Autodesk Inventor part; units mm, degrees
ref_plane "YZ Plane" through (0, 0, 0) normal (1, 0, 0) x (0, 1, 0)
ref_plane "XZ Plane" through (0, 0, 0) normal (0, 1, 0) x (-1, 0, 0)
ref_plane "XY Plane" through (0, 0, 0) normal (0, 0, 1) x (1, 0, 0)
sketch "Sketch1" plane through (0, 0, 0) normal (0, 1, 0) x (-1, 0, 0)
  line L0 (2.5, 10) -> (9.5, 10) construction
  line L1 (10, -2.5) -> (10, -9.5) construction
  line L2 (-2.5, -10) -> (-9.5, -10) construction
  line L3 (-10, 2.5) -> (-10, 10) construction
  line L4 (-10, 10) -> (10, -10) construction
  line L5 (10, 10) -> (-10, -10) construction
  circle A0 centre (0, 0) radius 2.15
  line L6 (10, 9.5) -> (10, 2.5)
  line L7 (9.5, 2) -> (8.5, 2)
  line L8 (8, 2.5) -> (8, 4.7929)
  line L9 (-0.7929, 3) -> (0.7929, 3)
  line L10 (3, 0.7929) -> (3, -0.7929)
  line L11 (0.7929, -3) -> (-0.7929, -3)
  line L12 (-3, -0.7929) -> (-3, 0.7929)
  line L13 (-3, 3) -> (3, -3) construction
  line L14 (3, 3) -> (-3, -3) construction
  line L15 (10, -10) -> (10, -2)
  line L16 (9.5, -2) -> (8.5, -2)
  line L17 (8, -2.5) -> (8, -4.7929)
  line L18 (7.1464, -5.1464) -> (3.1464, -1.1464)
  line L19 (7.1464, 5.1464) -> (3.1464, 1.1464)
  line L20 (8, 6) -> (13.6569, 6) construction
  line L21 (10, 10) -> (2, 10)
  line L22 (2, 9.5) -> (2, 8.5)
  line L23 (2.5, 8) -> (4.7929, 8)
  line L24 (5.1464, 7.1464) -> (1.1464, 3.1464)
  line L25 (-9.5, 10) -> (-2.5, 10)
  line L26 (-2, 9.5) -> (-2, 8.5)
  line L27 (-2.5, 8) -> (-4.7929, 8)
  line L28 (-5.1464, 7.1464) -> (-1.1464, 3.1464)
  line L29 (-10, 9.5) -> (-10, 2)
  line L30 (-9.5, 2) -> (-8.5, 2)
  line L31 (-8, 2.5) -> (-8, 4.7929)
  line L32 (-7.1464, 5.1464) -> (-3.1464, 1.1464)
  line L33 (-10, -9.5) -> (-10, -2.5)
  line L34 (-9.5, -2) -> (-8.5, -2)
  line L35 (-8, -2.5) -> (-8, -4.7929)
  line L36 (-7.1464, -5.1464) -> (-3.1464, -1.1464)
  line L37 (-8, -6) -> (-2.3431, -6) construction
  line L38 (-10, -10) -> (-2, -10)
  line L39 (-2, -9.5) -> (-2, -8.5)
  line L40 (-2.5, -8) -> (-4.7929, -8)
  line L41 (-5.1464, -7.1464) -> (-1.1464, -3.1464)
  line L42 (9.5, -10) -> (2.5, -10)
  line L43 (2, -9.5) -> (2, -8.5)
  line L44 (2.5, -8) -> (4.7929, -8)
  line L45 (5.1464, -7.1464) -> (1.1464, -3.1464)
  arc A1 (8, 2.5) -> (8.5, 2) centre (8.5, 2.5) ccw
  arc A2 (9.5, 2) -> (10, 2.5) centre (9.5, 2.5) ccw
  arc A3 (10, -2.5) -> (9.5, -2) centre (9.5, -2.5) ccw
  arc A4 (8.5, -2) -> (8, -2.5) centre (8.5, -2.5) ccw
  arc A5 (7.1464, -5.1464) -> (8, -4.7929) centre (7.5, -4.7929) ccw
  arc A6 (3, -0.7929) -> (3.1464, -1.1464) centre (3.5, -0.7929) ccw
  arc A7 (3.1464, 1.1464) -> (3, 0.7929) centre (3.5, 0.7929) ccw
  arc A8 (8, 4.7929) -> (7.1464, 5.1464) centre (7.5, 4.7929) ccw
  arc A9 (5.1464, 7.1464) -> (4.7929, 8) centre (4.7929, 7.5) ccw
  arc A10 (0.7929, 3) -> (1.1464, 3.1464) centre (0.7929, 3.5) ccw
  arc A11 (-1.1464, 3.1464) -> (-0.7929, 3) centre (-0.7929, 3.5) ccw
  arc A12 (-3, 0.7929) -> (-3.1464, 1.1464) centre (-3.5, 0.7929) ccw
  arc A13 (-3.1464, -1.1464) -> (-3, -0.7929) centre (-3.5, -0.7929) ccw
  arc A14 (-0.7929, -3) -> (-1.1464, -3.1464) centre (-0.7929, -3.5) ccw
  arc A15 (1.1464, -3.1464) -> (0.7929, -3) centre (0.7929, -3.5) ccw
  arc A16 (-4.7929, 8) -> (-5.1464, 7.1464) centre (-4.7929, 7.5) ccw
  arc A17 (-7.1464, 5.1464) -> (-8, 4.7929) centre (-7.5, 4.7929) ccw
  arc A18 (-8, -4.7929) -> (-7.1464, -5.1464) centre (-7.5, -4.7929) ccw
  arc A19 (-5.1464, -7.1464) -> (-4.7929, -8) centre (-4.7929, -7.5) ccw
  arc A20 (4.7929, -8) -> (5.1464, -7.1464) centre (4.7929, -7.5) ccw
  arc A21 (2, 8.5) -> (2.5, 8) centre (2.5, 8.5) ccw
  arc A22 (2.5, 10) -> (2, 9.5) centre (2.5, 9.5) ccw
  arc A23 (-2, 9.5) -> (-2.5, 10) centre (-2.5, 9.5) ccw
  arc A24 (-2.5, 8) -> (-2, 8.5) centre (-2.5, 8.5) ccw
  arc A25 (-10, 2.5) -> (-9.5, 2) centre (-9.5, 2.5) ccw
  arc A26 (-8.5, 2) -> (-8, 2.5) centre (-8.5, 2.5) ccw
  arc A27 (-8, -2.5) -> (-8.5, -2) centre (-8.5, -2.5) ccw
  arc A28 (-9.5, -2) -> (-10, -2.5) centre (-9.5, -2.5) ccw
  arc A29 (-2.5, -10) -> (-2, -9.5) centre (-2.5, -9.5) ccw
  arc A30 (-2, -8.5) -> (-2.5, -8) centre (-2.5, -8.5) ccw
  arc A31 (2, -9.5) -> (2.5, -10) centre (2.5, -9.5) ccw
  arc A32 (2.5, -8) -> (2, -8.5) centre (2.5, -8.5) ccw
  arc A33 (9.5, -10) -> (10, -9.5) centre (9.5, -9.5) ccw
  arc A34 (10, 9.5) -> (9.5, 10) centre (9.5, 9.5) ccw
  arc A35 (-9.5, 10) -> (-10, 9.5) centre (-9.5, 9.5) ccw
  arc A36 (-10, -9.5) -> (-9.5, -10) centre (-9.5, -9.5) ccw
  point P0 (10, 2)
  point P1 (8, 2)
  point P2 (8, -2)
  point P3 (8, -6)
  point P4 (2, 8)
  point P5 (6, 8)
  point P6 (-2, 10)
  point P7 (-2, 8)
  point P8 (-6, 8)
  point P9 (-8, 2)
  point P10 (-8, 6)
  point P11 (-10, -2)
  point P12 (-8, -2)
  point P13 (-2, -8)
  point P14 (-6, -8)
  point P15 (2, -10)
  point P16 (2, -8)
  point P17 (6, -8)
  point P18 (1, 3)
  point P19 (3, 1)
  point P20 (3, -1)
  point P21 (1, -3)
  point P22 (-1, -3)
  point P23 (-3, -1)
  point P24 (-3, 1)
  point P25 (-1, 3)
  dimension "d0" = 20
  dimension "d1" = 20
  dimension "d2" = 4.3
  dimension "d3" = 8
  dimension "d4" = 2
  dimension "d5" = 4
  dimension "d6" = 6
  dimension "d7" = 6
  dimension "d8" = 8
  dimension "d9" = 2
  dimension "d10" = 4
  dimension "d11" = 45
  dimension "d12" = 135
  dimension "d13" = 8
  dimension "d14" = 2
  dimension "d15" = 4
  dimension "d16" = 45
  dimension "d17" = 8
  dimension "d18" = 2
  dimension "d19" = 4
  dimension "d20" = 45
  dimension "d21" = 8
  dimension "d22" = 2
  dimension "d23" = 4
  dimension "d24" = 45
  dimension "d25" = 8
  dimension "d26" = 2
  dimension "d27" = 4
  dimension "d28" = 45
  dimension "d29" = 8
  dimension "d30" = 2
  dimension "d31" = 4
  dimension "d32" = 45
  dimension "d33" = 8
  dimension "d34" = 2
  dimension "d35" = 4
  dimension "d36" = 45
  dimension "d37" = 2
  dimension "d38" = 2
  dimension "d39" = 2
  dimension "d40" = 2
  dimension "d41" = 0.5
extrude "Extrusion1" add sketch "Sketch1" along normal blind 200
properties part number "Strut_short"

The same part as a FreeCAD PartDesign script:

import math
import FreeCAD as App
import Part
import Sketcher

doc = App.newDocument("Part")
body = doc.addObject("PartDesign::Body", "Body")

# Sketch on XZ plane
sketch1 = body.newObject("Sketcher::SketchObject", "Sketch")
sketch1.AttachmentSupport = (doc.getObject("XZ_Plane"), [""])
sketch1.MapMode = "FlatFace"
sketch1.addGeometry([
    Part.LineSegment(App.Vector(-10, 2.5, 0), App.Vector(-10, 9.5, 0)),  # 0
    Part.ArcOfCircle(Part.Circle(App.Vector(-9.5, 9.5, 0), App.Vector(0, 0, 1), 0.5), math.radians(90), math.radians(180)),  # 1
    Part.LineSegment(App.Vector(-9.5, 10, 0), App.Vector(-2.5, 10, 0)),  # 2
    Part.ArcOfCircle(Part.Circle(App.Vector(-2.5, 9.5, 0), App.Vector(0, 0, 1), 0.5), math.radians(0), math.radians(90)),  # 3
    Part.LineSegment(App.Vector(-2, 9.5, 0), App.Vector(-2, 8.5, 0)),  # 4
    Part.ArcOfCircle(Part.Circle(App.Vector(-2.5, 8.5, 0), App.Vector(0, 0, 1), 0.5), math.radians(-90), math.radians(0)),  # 5
    Part.LineSegment(App.Vector(-2.5, 8, 0), App.Vector(-4.7929, 8, 0)),  # 6
    Part.ArcOfCircle(Part.Circle(App.Vector(-4.7929, 7.5, 0), App.Vector(0, 0, 1), 0.499995), math.radians(90), math.radians(225.008103)),  # 7
    Part.LineSegment(App.Vector(-5.1464, 7.1464, 0), App.Vector(-1.1464, 3.1464, 0)),  # 8
    Part.ArcOfCircle(Part.Circle(App.Vector(-0.7929, 3.5, 0), App.Vector(0, 0, 1), 0.5), math.radians(-134.991897), math.radians(-90)),  # 9
    Part.LineSegment(App.Vector(-0.7929, 3, 0), App.Vector(0.7929, 3, 0)),  # 10
    Part.ArcOfCircle(Part.Circle(App.Vector(0.7929, 3.5, 0), App.Vector(0, 0, 1), 0.499995), math.radians(-90), math.radians(-45.008103)),  # 11
    Part.LineSegment(App.Vector(1.1464, 3.1464, 0), App.Vector(5.1464, 7.1464, 0)),  # 12
    Part.ArcOfCircle(Part.Circle(App.Vector(4.7929, 7.5, 0), App.Vector(0, 0, 1), 0.5), math.radians(-45.008103), math.radians(90)),  # 13
    Part.LineSegment(App.Vector(4.7929, 8, 0), App.Vector(2.5, 8, 0)),  # 14
    Part.ArcOfCircle(Part.Circle(App.Vector(2.5, 8.5, 0), App.Vector(0, 0, 1), 0.5), math.radians(180), math.radians(270)),  # 15
    Part.LineSegment(App.Vector(2, 8.5, 0), App.Vector(2, 9.5, 0)),  # 16
    Part.ArcOfCircle(Part.Circle(App.Vector(2.5, 9.5, 0), App.Vector(0, 0, 1), 0.5), math.radians(90), math.radians(180)),  # 17
    Part.LineSegment(App.Vector(2.5, 10, 0), App.Vector(9.5, 10, 0)),  # 18
    Part.ArcOfCircle(Part.Circle(App.Vector(9.5, 9.5, 0), App.Vector(0, 0, 1), 0.5), math.radians(0), math.radians(90)),  # 19
    Part.LineSegment(App.Vector(10, 9.5, 0), App.Vector(10, 2.5, 0)),  # 20
    Part.ArcOfCircle(Part.Circle(App.Vector(9.5, 2.5, 0), App.Vector(0, 0, 1), 0.5), math.radians(-90), math.radians(0)),  # 21
    Part.LineSegment(App.Vector(9.5, 2, 0), App.Vector(8.5, 2, 0)),  # 22
    Part.ArcOfCircle(Part.Circle(App.Vector(8.5, 2.5, 0), App.Vector(0, 0, 1), 0.5), math.radians(180), math.radians(270)),  # 23
    Part.LineSegment(App.Vector(8, 2.5, 0), App.Vector(8, 4.7929, 0)),  # 24
    Part.ArcOfCircle(Part.Circle(App.Vector(7.5, 4.7929, 0), App.Vector(0, 0, 1), 0.499995), math.radians(0), math.radians(135.008103)),  # 25
    Part.LineSegment(App.Vector(7.1464, 5.1464, 0), App.Vector(3.1464, 1.1464, 0)),  # 26
    Part.ArcOfCircle(Part.Circle(App.Vector(3.5, 0.7929, 0), App.Vector(0, 0, 1), 0.5), math.radians(135.008103), math.radians(180)),  # 27
    Part.LineSegment(App.Vector(3, 0.7929, 0), App.Vector(3, -0.7929, 0)),  # 28
    Part.ArcOfCircle(Part.Circle(App.Vector(3.5, -0.7929, 0), App.Vector(0, 0, 1), 0.499995), math.radians(180), math.radians(224.991897)),  # 29
    Part.LineSegment(App.Vector(3.1464, -1.1464, 0), App.Vector(7.1464, -5.1464, 0)),  # 30
    Part.ArcOfCircle(Part.Circle(App.Vector(7.5, -4.7929, 0), App.Vector(0, 0, 1), 0.5), math.radians(-135.008103), math.radians(0)),  # 31
    Part.LineSegment(App.Vector(8, -4.7929, 0), App.Vector(8, -2.5, 0)),  # 32
    Part.ArcOfCircle(Part.Circle(App.Vector(8.5, -2.5, 0), App.Vector(0, 0, 1), 0.5), math.radians(90), math.radians(180)),  # 33
    Part.LineSegment(App.Vector(8.5, -2, 0), App.Vector(9.5, -2, 0)),  # 34
    Part.ArcOfCircle(Part.Circle(App.Vector(9.5, -2.5, 0), App.Vector(0, 0, 1), 0.5), math.radians(0), math.radians(90)),  # 35
    Part.LineSegment(App.Vector(10, -2.5, 0), App.Vector(10, -9.5, 0)),  # 36
    Part.ArcOfCircle(Part.Circle(App.Vector(9.5, -9.5, 0), App.Vector(0, 0, 1), 0.5), math.radians(-90), math.radians(0)),  # 37
    Part.LineSegment(App.Vector(9.5, -10, 0), App.Vector(2.5, -10, 0)),  # 38
    Part.ArcOfCircle(Part.Circle(App.Vector(2.5, -9.5, 0), App.Vector(0, 0, 1), 0.5), math.radians(180), math.radians(270)),  # 39
    Part.LineSegment(App.Vector(2, -9.5, 0), App.Vector(2, -8.5, 0)),  # 40
    Part.ArcOfCircle(Part.Circle(App.Vector(2.5, -8.5, 0), App.Vector(0, 0, 1), 0.5), math.radians(90), math.radians(180)),  # 41
    Part.LineSegment(App.Vector(2.5, -8, 0), App.Vector(4.7929, -8, 0)),  # 42
    Part.ArcOfCircle(Part.Circle(App.Vector(4.7929, -7.5, 0), App.Vector(0, 0, 1), 0.499995), math.radians(-90), math.radians(45.008103)),  # 43
    Part.LineSegment(App.Vector(5.1464, -7.1464, 0), App.Vector(1.1464, -3.1464, 0)),  # 44
    Part.ArcOfCircle(Part.Circle(App.Vector(0.7929, -3.5, 0), App.Vector(0, 0, 1), 0.5), math.radians(45.008103), math.radians(90)),  # 45
    Part.LineSegment(App.Vector(0.7929, -3, 0), App.Vector(-0.7929, -3, 0)),  # 46
    Part.ArcOfCircle(Part.Circle(App.Vector(-0.7929, -3.5, 0), App.Vector(0, 0, 1), 0.499995), math.radians(90), math.radians(134.991897)),  # 47
    Part.LineSegment(App.Vector(-1.1464, -3.1464, 0), App.Vector(-5.1464, -7.1464, 0)),  # 48
    Part.ArcOfCircle(Part.Circle(App.Vector(-4.7929, -7.5, 0), App.Vector(0, 0, 1), 0.5), math.radians(134.991897), math.radians(270)),  # 49
    Part.LineSegment(App.Vector(-4.7929, -8, 0), App.Vector(-2.5, -8, 0)),  # 50
    Part.ArcOfCircle(Part.Circle(App.Vector(-2.5, -8.5, 0), App.Vector(0, 0, 1), 0.5), math.radians(0), math.radians(90)),  # 51
    Part.LineSegment(App.Vector(-2, -8.5, 0), App.Vector(-2, -9.5, 0)),  # 52
    Part.ArcOfCircle(Part.Circle(App.Vector(-2.5, -9.5, 0), App.Vector(0, 0, 1), 0.5), math.radians(-90), math.radians(0)),  # 53
    Part.LineSegment(App.Vector(-2.5, -10, 0), App.Vector(-9.5, -10, 0)),  # 54
    Part.ArcOfCircle(Part.Circle(App.Vector(-9.5, -9.5, 0), App.Vector(0, 0, 1), 0.5), math.radians(180), math.radians(270)),  # 55
    Part.LineSegment(App.Vector(-10, -9.5, 0), App.Vector(-10, -2.5, 0)),  # 56
    Part.ArcOfCircle(Part.Circle(App.Vector(-9.5, -2.5, 0), App.Vector(0, 0, 1), 0.5), math.radians(90), math.radians(180)),  # 57
    Part.LineSegment(App.Vector(-9.5, -2, 0), App.Vector(-8.5, -2, 0)),  # 58
    Part.ArcOfCircle(Part.Circle(App.Vector(-8.5, -2.5, 0), App.Vector(0, 0, 1), 0.5), math.radians(0), math.radians(90)),  # 59
    Part.LineSegment(App.Vector(-8, -2.5, 0), App.Vector(-8, -4.7929, 0)),  # 60
    Part.ArcOfCircle(Part.Circle(App.Vector(-7.5, -4.7929, 0), App.Vector(0, 0, 1), 0.499995), math.radians(180), math.radians(315.008103)),  # 61
    Part.LineSegment(App.Vector(-7.1464, -5.1464, 0), App.Vector(-3.1464, -1.1464, 0)),  # 62
    Part.ArcOfCircle(Part.Circle(App.Vector(-3.5, -0.7929, 0), App.Vector(0, 0, 1), 0.5), math.radians(-44.991897), math.radians(0)),  # 63
    Part.LineSegment(App.Vector(-3, -0.7929, 0), App.Vector(-3, 0.7929, 0)),  # 64
    Part.ArcOfCircle(Part.Circle(App.Vector(-3.5, 0.7929, 0), App.Vector(0, 0, 1), 0.499995), math.radians(0), math.radians(44.991897)),  # 65
    Part.LineSegment(App.Vector(-3.1464, 1.1464, 0), App.Vector(-7.1464, 5.1464, 0)),  # 66
    Part.ArcOfCircle(Part.Circle(App.Vector(-7.5, 4.7929, 0), App.Vector(0, 0, 1), 0.5), math.radians(44.991897), math.radians(180)),  # 67
    Part.LineSegment(App.Vector(-8, 4.7929, 0), App.Vector(-8, 2.5, 0)),  # 68
    Part.ArcOfCircle(Part.Circle(App.Vector(-8.5, 2.5, 0), App.Vector(0, 0, 1), 0.5), math.radians(-90), math.radians(0)),  # 69
    Part.LineSegment(App.Vector(-8.5, 2, 0), App.Vector(-9.5, 2, 0)),  # 70
    Part.ArcOfCircle(Part.Circle(App.Vector(-9.5, 2.5, 0), App.Vector(0, 0, 1), 0.5), math.radians(180), math.radians(270)),  # 71
    Part.Circle(App.Vector(0, 0, 0), App.Vector(0, 0, 1), 2.15),  # 72
], False)
sketch1.addConstraint([
    Sketcher.Constraint("Tangent", 0, 2, 1, 2),
    Sketcher.Constraint("Tangent", 1, 1, 2, 1),
    Sketcher.Constraint("Tangent", 2, 2, 3, 2),
    Sketcher.Constraint("Tangent", 3, 1, 4, 1),
    Sketcher.Constraint("Tangent", 4, 2, 5, 2),
    Sketcher.Constraint("Tangent", 5, 1, 6, 1),
    Sketcher.Constraint("Tangent", 6, 2, 7, 1),
    Sketcher.Constraint("Tangent", 7, 2, 8, 1),
    Sketcher.Constraint("Tangent", 8, 2, 9, 1),
    Sketcher.Constraint("Tangent", 9, 2, 10, 1),
    Sketcher.Constraint("Tangent", 10, 2, 11, 1),
    Sketcher.Constraint("Tangent", 11, 2, 12, 1),
    Sketcher.Constraint("Tangent", 12, 2, 13, 1),
    Sketcher.Constraint("Tangent", 13, 2, 14, 1),
    Sketcher.Constraint("Tangent", 14, 2, 15, 2),
    Sketcher.Constraint("Tangent", 15, 1, 16, 1),
    Sketcher.Constraint("Tangent", 16, 2, 17, 2),
    Sketcher.Constraint("Tangent", 17, 1, 18, 1),
    Sketcher.Constraint("Tangent", 18, 2, 19, 2),
    Sketcher.Constraint("Tangent", 19, 1, 20, 1),
    Sketcher.Constraint("Tangent", 20, 2, 21, 2),
    Sketcher.Constraint("Tangent", 21, 1, 22, 1),
    Sketcher.Constraint("Tangent", 22, 2, 23, 2),
    Sketcher.Constraint("Tangent", 23, 1, 24, 1),
    Sketcher.Constraint("Tangent", 24, 2, 25, 1),
    Sketcher.Constraint("Tangent", 25, 2, 26, 1),
    Sketcher.Constraint("Tangent", 26, 2, 27, 1),
    Sketcher.Constraint("Tangent", 27, 2, 28, 1),
    Sketcher.Constraint("Tangent", 28, 2, 29, 1),
    Sketcher.Constraint("Tangent", 29, 2, 30, 1),
    Sketcher.Constraint("Tangent", 30, 2, 31, 1),
    Sketcher.Constraint("Tangent", 31, 2, 32, 1),
    Sketcher.Constraint("Tangent", 32, 2, 33, 2),
    Sketcher.Constraint("Tangent", 33, 1, 34, 1),
    Sketcher.Constraint("Tangent", 34, 2, 35, 2),
    Sketcher.Constraint("Tangent", 35, 1, 36, 1),
    Sketcher.Constraint("Tangent", 36, 2, 37, 2),
    Sketcher.Constraint("Tangent", 37, 1, 38, 1),
    Sketcher.Constraint("Tangent", 38, 2, 39, 2),
    Sketcher.Constraint("Tangent", 39, 1, 40, 1),
    Sketcher.Constraint("Tangent", 40, 2, 41, 2),
    Sketcher.Constraint("Tangent", 41, 1, 42, 1),
    Sketcher.Constraint("Tangent", 42, 2, 43, 1),
    Sketcher.Constraint("Tangent", 43, 2, 44, 1),
    Sketcher.Constraint("Tangent", 44, 2, 45, 1),
    Sketcher.Constraint("Tangent", 45, 2, 46, 1),
    Sketcher.Constraint("Tangent", 46, 2, 47, 1),
    Sketcher.Constraint("Tangent", 47, 2, 48, 1),
    Sketcher.Constraint("Tangent", 48, 2, 49, 1),
    Sketcher.Constraint("Tangent", 49, 2, 50, 1),
    Sketcher.Constraint("Tangent", 50, 2, 51, 2),
    Sketcher.Constraint("Tangent", 51, 1, 52, 1),
    Sketcher.Constraint("Tangent", 52, 2, 53, 2),
    Sketcher.Constraint("Tangent", 53, 1, 54, 1),
    Sketcher.Constraint("Tangent", 54, 2, 55, 2),
    Sketcher.Constraint("Tangent", 55, 1, 56, 1),
    Sketcher.Constraint("Tangent", 56, 2, 57, 2),
    Sketcher.Constraint("Tangent", 57, 1, 58, 1),
    Sketcher.Constraint("Tangent", 58, 2, 59, 2),
    Sketcher.Constraint("Tangent", 59, 1, 60, 1),
    Sketcher.Constraint("Tangent", 60, 2, 61, 1),
    Sketcher.Constraint("Tangent", 61, 2, 62, 1),
    Sketcher.Constraint("Tangent", 62, 2, 63, 1),
    Sketcher.Constraint("Tangent", 63, 2, 64, 1),
    Sketcher.Constraint("Tangent", 64, 2, 65, 1),
    Sketcher.Constraint("Tangent", 65, 2, 66, 1),
    Sketcher.Constraint("Tangent", 66, 2, 67, 1),
    Sketcher.Constraint("Tangent", 67, 2, 68, 1),
    Sketcher.Constraint("Tangent", 68, 2, 69, 2),
    Sketcher.Constraint("Tangent", 69, 1, 70, 1),
    Sketcher.Constraint("Tangent", 70, 2, 71, 2),
    Sketcher.Constraint("Tangent", 71, 1, 0, 1),
    Sketcher.Constraint("Vertical", 0),
    Sketcher.Constraint("Horizontal", 2),
    Sketcher.Constraint("Vertical", 4),
    Sketcher.Constraint("Horizontal", 6),
    Sketcher.Constraint("Horizontal", 10),
    Sketcher.Constraint("Horizontal", 14),
    Sketcher.Constraint("Vertical", 16),
    Sketcher.Constraint("Horizontal", 18),
    Sketcher.Constraint("Vertical", 20),
    Sketcher.Constraint("Horizontal", 22),
    Sketcher.Constraint("Vertical", 24),
    Sketcher.Constraint("Vertical", 28),
    Sketcher.Constraint("Vertical", 32),
    Sketcher.Constraint("Horizontal", 34),
    Sketcher.Constraint("Vertical", 36),
    Sketcher.Constraint("Horizontal", 38),
    Sketcher.Constraint("Vertical", 40),
    Sketcher.Constraint("Horizontal", 42),
    Sketcher.Constraint("Horizontal", 46),
    Sketcher.Constraint("Horizontal", 50),
    Sketcher.Constraint("Vertical", 52),
    Sketcher.Constraint("Horizontal", 54),
    Sketcher.Constraint("Vertical", 56),
    Sketcher.Constraint("Horizontal", 58),
    Sketcher.Constraint("Vertical", 60),
    Sketcher.Constraint("Vertical", 64),
    Sketcher.Constraint("Vertical", 68),
    Sketcher.Constraint("Horizontal", 70),
    Sketcher.Constraint("Coincident", 72, 3, -1, 1),
    Sketcher.Constraint("Equal", 1, 3),
    Sketcher.Constraint("Equal", 3, 5),
    Sketcher.Constraint("Equal", 5, 7),
    Sketcher.Constraint("Equal", 7, 9),
    Sketcher.Constraint("Equal", 9, 11),
    Sketcher.Constraint("Equal", 11, 13),
    Sketcher.Constraint("Equal", 13, 15),
    Sketcher.Constraint("Equal", 15, 17),
    Sketcher.Constraint("Equal", 17, 19),
    Sketcher.Constraint("Equal", 19, 21),
    Sketcher.Constraint("Equal", 21, 23),
    Sketcher.Constraint("Equal", 23, 25),
    Sketcher.Constraint("Equal", 25, 27),
    Sketcher.Constraint("Equal", 27, 29),
    Sketcher.Constraint("Equal", 29, 31),
    Sketcher.Constraint("Equal", 31, 33),
    Sketcher.Constraint("Equal", 33, 35),
    Sketcher.Constraint("Equal", 35, 37),
    Sketcher.Constraint("Equal", 37, 39),
    Sketcher.Constraint("Equal", 39, 41),
    Sketcher.Constraint("Equal", 41, 43),
    Sketcher.Constraint("Equal", 43, 45),
    Sketcher.Constraint("Equal", 45, 47),
    Sketcher.Constraint("Equal", 47, 49),
    Sketcher.Constraint("Equal", 49, 51),
    Sketcher.Constraint("Equal", 51, 53),
    Sketcher.Constraint("Equal", 53, 55),
    Sketcher.Constraint("Equal", 55, 57),
    Sketcher.Constraint("Equal", 57, 59),
    Sketcher.Constraint("Equal", 59, 61),
    Sketcher.Constraint("Equal", 61, 63),
    Sketcher.Constraint("Equal", 63, 65),
    Sketcher.Constraint("Equal", 65, 67),
    Sketcher.Constraint("Equal", 67, 69),
    Sketcher.Constraint("Equal", 69, 71),
    Sketcher.Constraint("Symmetric", 1, 3, 37, 3, -1, 1),
    Sketcher.Constraint("Symmetric", 5, 3, 41, 3, -1, 1),
    Sketcher.Constraint("Symmetric", 9, 3, 45, 3, -1, 1),
    Sketcher.Constraint("Symmetric", 13, 3, 49, 3, -1, 1),
    Sketcher.Constraint("Symmetric", 17, 3, 53, 3, -1, 1),
    Sketcher.Constraint("Symmetric", 21, 3, 57, 3, -1, 1),
    Sketcher.Constraint("Symmetric", 25, 3, 61, 3, -1, 1),
    Sketcher.Constraint("Symmetric", 27, 3, 63, 3, -1, 1),
    Sketcher.Constraint("Symmetric", 31, 3, 67, 3, -1, 1),
    Sketcher.Constraint("Symmetric", 7, 3, 13, 3, -2),
    Sketcher.Constraint("Symmetric", 3, 3, 17, 3, -2),
    Sketcher.Constraint("Symmetric", 35, 3, 57, 3, -2),
    Sketcher.Constraint("Symmetric", 31, 3, 61, 3, -2),
    Sketcher.Constraint("Symmetric", 44, 2, 47, 2, -2),
    Sketcher.Constraint("Perpendicular", 8, 12),
    Sketcher.Constraint("Parallel", 12, 26),
    Sketcher.Constraint("Perpendicular", 26, 30),
    Sketcher.Constraint("Perpendicular", 44, 48),
    Sketcher.Constraint("Perpendicular", 62, 66),
    Sketcher.Constraint("Horizontal", 23, 3, 69, 3),
    Sketcher.Constraint("Equal", 54, 0),
    Sketcher.Constraint("Equal", 70, 4),
    Sketcher.Constraint("Equal", 50, 24),
    Sketcher.Constraint("Equal", 46, 28),
    Sketcher.Constraint("Equal", 12, 26),
    Sketcher.Constraint("Diameter", 72, 4.3),
    Sketcher.Constraint("Radius", 1, 0.5),
    Sketcher.Constraint("DistanceX", 3, 1, -1, 1, 2.0),
    Sketcher.Constraint("DistanceY", -1, 1, 5, 1, 8.0),
    Sketcher.Constraint("DistanceX", 2, 1, 2, 2, 7.0),
    Sketcher.Constraint("DistanceY", -1, 1, 9, 2, 3.0),
    Sketcher.Constraint("DistanceX", 6, 2, 6, 1, 2.293),
])
pad1 = body.newObject("PartDesign::Pad", "Pad")
pad1.Profile = sketch1
pad1.Length = 200
pad1.Reversed = True

doc.recompute()
